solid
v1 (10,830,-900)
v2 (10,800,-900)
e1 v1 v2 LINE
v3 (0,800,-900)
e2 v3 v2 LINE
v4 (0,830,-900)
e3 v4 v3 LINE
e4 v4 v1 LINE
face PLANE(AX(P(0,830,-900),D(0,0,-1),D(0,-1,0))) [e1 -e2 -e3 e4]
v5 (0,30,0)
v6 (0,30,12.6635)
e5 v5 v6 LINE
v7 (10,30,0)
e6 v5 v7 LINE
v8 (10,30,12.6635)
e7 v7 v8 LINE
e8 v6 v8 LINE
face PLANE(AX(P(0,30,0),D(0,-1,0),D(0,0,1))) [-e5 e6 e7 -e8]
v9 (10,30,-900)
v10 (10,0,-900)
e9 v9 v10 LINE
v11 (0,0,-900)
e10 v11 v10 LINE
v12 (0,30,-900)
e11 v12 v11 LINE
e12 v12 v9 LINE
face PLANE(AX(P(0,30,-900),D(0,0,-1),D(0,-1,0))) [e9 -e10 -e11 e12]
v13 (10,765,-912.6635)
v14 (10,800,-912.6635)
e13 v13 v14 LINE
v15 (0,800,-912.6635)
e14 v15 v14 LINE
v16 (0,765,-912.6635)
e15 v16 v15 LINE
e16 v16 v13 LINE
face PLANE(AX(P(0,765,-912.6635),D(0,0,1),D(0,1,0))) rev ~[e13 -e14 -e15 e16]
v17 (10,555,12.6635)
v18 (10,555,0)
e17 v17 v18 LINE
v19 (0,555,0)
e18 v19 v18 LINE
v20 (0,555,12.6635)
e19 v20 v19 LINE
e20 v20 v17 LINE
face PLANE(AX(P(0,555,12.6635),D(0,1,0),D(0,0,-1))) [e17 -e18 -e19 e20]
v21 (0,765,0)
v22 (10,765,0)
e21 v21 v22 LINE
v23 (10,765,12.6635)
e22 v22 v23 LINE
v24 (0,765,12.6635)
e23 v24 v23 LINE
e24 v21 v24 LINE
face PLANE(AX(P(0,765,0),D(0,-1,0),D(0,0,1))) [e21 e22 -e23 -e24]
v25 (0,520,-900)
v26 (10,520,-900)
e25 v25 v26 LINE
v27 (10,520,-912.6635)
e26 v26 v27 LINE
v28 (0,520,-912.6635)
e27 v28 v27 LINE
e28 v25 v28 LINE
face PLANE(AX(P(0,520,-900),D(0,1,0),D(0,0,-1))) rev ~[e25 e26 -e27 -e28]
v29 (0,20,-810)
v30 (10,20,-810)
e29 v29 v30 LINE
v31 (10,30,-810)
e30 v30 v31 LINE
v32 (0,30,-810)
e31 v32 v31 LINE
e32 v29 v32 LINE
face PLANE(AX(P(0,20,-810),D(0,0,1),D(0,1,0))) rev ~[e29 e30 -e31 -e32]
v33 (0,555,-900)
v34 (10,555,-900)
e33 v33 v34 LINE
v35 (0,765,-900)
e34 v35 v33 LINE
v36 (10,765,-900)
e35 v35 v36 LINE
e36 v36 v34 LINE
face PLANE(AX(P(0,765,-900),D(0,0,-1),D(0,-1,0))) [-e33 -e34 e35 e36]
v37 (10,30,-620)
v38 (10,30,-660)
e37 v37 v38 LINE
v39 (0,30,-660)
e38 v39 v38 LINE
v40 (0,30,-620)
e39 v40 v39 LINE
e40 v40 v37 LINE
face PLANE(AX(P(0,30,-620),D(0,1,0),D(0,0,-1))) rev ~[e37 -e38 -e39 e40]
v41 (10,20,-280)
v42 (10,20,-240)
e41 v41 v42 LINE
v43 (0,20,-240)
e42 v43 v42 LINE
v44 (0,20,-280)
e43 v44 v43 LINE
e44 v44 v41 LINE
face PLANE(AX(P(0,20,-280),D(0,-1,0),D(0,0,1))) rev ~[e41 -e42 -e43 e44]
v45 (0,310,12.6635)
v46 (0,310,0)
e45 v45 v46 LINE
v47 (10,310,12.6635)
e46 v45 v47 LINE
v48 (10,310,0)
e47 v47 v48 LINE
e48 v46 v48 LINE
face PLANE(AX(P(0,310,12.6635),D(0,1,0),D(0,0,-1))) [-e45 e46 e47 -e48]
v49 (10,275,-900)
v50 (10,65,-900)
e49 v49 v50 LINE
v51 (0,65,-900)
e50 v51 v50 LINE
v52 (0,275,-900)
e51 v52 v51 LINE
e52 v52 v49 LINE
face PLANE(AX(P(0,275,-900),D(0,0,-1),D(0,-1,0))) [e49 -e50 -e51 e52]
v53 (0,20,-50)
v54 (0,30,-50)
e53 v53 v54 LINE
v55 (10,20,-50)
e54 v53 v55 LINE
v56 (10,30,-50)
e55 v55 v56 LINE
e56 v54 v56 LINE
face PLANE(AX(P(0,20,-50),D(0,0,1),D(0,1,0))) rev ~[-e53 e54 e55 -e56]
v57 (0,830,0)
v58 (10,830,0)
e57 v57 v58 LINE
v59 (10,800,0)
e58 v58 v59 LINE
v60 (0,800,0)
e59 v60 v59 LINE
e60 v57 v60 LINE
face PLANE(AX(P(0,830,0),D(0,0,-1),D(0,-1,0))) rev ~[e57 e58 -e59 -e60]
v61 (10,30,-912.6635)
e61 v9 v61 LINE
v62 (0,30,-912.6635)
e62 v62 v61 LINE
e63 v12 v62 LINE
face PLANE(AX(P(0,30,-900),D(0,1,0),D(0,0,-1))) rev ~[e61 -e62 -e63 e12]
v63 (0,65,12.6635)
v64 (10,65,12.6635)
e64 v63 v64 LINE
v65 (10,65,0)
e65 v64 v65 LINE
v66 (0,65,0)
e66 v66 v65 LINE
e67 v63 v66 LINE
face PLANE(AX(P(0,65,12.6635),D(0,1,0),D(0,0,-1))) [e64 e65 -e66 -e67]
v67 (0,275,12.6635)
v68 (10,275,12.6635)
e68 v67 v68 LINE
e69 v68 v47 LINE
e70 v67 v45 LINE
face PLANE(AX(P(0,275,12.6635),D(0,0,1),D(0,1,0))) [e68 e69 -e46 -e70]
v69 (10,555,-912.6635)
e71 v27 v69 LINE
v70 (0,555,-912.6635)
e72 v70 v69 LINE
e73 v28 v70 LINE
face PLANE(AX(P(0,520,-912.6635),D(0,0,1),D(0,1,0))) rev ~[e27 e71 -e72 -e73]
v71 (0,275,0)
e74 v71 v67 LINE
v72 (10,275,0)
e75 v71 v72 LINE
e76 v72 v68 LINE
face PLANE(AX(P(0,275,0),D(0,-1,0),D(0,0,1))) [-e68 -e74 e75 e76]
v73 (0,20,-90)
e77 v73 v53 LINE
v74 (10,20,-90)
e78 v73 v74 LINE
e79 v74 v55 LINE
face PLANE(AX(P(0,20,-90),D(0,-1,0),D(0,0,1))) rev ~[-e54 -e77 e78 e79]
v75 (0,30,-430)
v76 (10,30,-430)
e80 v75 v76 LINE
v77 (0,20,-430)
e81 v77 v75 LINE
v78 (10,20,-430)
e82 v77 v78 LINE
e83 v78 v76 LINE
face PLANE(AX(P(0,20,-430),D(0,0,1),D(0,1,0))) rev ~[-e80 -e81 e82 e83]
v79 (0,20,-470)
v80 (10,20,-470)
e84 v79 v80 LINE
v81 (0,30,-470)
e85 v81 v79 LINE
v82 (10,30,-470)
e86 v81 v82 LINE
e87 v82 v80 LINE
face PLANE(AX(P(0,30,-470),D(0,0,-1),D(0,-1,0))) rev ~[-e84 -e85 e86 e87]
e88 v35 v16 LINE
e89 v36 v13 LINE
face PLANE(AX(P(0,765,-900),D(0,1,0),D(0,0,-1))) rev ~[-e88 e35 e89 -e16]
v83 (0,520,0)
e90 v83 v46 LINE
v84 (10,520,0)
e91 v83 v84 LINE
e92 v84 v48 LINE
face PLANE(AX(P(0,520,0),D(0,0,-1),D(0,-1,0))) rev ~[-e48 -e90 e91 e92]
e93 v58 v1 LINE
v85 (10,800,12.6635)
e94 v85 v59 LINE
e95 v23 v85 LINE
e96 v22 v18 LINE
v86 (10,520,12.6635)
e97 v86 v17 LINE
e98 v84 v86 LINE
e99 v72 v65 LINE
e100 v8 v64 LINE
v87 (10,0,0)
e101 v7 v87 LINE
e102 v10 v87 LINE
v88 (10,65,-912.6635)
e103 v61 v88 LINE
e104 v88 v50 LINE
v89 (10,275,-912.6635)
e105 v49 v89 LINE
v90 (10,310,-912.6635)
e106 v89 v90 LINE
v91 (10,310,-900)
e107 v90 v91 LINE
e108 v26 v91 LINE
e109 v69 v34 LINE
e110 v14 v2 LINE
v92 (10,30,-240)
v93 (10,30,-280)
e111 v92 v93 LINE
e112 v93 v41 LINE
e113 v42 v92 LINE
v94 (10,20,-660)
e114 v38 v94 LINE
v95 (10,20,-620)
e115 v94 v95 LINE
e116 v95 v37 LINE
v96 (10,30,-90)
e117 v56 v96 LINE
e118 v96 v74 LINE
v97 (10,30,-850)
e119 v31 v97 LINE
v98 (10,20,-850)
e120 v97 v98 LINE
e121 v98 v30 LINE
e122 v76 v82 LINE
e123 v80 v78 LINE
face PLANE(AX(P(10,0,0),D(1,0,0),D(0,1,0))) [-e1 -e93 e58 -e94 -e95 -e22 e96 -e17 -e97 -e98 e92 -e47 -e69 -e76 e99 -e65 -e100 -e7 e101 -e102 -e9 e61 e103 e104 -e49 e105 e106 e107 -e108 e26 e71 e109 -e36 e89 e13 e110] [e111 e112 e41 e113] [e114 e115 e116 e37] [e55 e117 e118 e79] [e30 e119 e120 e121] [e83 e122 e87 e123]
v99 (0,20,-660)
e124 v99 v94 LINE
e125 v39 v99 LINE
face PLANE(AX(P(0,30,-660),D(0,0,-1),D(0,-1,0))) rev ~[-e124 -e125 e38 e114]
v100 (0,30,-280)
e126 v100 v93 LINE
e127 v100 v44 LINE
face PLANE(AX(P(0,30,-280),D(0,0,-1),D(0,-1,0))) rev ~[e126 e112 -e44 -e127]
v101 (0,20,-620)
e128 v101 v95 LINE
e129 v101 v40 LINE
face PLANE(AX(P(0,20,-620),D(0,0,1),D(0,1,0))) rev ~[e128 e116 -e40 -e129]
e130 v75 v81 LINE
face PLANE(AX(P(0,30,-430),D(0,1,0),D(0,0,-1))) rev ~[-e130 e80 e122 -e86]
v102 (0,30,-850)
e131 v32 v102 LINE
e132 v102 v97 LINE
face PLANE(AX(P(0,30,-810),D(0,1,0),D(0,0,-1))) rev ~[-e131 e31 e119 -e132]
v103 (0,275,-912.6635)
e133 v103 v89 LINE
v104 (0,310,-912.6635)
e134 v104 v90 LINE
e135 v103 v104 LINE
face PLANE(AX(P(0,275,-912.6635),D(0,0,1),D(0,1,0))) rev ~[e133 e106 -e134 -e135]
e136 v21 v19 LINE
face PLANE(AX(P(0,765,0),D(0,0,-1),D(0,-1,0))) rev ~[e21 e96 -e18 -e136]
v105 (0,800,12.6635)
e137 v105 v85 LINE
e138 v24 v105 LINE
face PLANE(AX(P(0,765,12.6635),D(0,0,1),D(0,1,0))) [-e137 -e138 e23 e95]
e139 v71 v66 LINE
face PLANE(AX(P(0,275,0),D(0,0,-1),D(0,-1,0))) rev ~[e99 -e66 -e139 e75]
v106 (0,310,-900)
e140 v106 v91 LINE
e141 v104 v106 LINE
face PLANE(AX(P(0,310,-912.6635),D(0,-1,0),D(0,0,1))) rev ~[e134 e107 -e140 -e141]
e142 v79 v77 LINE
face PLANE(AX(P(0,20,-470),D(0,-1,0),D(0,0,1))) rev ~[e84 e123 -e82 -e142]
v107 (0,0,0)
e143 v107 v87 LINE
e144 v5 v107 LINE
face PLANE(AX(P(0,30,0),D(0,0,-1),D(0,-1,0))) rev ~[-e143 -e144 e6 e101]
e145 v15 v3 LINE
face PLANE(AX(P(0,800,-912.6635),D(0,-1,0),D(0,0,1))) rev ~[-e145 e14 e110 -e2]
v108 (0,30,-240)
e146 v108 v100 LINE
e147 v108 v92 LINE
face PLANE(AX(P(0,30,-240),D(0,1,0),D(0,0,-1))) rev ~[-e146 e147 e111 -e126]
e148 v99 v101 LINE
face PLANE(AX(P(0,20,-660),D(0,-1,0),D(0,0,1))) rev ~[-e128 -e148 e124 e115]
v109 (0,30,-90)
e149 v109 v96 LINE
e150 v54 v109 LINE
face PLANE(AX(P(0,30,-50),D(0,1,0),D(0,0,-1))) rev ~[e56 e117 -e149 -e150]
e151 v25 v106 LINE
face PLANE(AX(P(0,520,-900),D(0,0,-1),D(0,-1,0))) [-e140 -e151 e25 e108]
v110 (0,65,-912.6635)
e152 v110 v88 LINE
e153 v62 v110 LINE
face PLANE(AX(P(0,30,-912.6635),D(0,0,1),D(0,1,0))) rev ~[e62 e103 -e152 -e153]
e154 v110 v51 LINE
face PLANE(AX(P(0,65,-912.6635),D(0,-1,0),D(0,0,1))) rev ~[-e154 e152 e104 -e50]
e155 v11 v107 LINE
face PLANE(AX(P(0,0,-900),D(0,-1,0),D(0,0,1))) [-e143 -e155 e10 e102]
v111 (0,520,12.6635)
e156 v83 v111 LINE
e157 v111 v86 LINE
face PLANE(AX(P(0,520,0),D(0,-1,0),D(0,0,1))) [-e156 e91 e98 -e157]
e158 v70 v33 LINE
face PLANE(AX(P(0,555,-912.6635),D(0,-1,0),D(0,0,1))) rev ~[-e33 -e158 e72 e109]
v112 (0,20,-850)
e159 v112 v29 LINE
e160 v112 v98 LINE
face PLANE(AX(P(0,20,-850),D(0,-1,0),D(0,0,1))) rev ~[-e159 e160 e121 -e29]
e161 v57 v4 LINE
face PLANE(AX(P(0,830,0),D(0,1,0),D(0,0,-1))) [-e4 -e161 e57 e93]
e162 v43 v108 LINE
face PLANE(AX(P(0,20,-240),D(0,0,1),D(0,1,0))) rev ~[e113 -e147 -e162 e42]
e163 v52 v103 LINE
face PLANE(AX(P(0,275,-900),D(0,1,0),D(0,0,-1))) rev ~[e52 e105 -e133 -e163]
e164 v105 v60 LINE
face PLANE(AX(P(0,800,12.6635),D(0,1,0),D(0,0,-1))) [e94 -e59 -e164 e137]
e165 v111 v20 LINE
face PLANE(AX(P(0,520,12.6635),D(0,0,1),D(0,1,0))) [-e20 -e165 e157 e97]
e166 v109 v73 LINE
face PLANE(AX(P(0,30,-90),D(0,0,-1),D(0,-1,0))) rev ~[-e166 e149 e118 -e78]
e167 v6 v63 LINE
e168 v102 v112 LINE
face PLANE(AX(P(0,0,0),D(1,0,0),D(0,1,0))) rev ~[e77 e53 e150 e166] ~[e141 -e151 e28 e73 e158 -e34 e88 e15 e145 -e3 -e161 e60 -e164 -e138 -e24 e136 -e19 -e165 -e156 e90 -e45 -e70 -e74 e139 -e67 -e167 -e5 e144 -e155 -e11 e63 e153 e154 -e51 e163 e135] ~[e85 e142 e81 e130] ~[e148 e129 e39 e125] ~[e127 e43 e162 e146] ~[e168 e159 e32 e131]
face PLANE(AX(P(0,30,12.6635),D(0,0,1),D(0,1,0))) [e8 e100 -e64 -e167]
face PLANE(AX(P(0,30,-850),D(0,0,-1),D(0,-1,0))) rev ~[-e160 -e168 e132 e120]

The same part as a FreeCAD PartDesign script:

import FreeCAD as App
import Part
import Sketcher


def add_polygon(sketch, points):
    """Adds a closed chain of lines whose ends are joined by coincident constraints."""
    first, n = sketch.GeometryCount, len(points)
    for a, b in zip(points, points[1:] + points[:1]):
        sketch.addGeometry(Part.LineSegment(App.Vector(*a, 0), App.Vector(*b, 0)), False)
    for i in range(n):
        sketch.addConstraint(Sketcher.Constraint("Coincident", first + i, 2, first + (i + 1) % n, 1))

doc = App.newDocument("Part")
body = doc.addObject("PartDesign::Body", "Body")

# Sketch on YZ plane
sketch1 = body.newObject("Sketcher::SketchObject", "Sketch")
sketch1.AttachmentSupport = (doc.getObject("YZ_Plane"), [""])
sketch1.MapMode = "FlatFace"
add_polygon(sketch1, [(830, -900), (830, 0), (800, 0), (800, 13), (765, 13), (765, 0), (555, 0), (555, 13), (520, 13), (520, 0), (310, 0), (310, 13), (275, 13), (275, 0), (65, 0), (65, 13), (30, 13), (30, 0), (0, 0), (0, -900), (30, -900), (30, -913), (65, -913), (65, -900), (275, -900), (275, -913), (310, -913), (310, -900), (520, -900), (520, -913), (555, -913), (555, -900), (765, -900), (765, -913), (800, -913), (800, -900)])  # lines 0-35
add_polygon(sketch1, [(20, -850), (20, -810), (30, -810), (30, -850)])  # lines 36-39
add_polygon(sketch1, [(20, -660), (20, -620), (30, -620), (30, -660)])  # lines 40-43
add_polygon(sketch1, [(20, -470), (20, -430), (30, -430), (30, -470)])  # lines 44-47
add_polygon(sketch1, [(20, -280), (20, -240), (30, -240), (30, -280)])  # lines 48-51
add_polygon(sketch1, [(20, -90), (20, -50), (30, -50), (30, -90)])  # lines 52-55
sketch1.addConstraint([
    Sketcher.Constraint("Vertical", 0),
    Sketcher.Constraint("Horizontal", 1),
    Sketcher.Constraint("Vertical", 2),
    Sketcher.Constraint("Horizontal", 3),
    Sketcher.Constraint("Vertical", 4),
    Sketcher.Constraint("Horizontal", 5),
    Sketcher.Constraint("Vertical", 6),
    Sketcher.Constraint("Horizontal", 7),
    Sketcher.Constraint("Vertical", 8),
    Sketcher.Constraint("Horizontal", 9),
    Sketcher.Constraint("Vertical", 10),
    Sketcher.Constraint("Horizontal", 11),
    Sketcher.Constraint("Vertical", 12),
    Sketcher.Constraint("Horizontal", 13),
    Sketcher.Constraint("Vertical", 14),
    Sketcher.Constraint("Horizontal", 15),
    Sketcher.Constraint("Vertical", 16),
    Sketcher.Constraint("Horizontal", 17),
    Sketcher.Constraint("Vertical", 18),
    Sketcher.Constraint("Horizontal", 19),
    Sketcher.Constraint("Vertical", 20),
    Sketcher.Constraint("Horizontal", 21),
    Sketcher.Constraint("Vertical", 22),
    Sketcher.Constraint("Horizontal", 23),
    Sketcher.Constraint("Vertical", 24),
    Sketcher.Constraint("Horizontal", 25),
    Sketcher.Constraint("Vertical", 26),
    Sketcher.Constraint("Horizontal", 27),
    Sketcher.Constraint("Vertical", 28),
    Sketcher.Constraint("Horizontal", 29),
    Sketcher.Constraint("Vertical", 30),
    Sketcher.Constraint("Horizontal", 31),
    Sketcher.Constraint("Vertical", 32),
    Sketcher.Constraint("Horizontal", 33),
    Sketcher.Constraint("Vertical", 34),
    Sketcher.Constraint("Horizontal", 35),
    Sketcher.Constraint("Vertical", 36),
    Sketcher.Constraint("Horizontal", 37),
    Sketcher.Constraint("Vertical", 38),
    Sketcher.Constraint("Horizontal", 39),
    Sketcher.Constraint("Vertical", 40),
    Sketcher.Constraint("Horizontal", 41),
    Sketcher.Constraint("Vertical", 42),
    Sketcher.Constraint("Horizontal", 43),
    Sketcher.Constraint("Vertical", 44),
    Sketcher.Constraint("Horizontal", 45),
    Sketcher.Constraint("Vertical", 46),
    Sketcher.Constraint("Horizontal", 47),
    Sketcher.Constraint("Vertical", 48),
    Sketcher.Constraint("Horizontal", 49),
    Sketcher.Constraint("Vertical", 50),
    Sketcher.Constraint("Horizontal", 51),
    Sketcher.Constraint("Vertical", 52),
    Sketcher.Constraint("Horizontal", 53),
    Sketcher.Constraint("Vertical", 54),
    Sketcher.Constraint("Horizontal", 55),
    Sketcher.Constraint("Coincident", 17, 2, -1, 1),
    Sketcher.Constraint("PointOnObject", 0, 2, -1),
    Sketcher.Constraint("PointOnObject", 4, 2, -1),
    Sketcher.Constraint("PointOnObject", 8, 2, -1),
    Sketcher.Constraint("PointOnObject", 12, 2, -1),
    Sketcher.Constraint("Horizontal", 3, 2, 6, 2),
    Sketcher.Constraint("Horizontal", 7, 2, 10, 2),
    Sketcher.Constraint("Horizontal", 11, 2, 14, 2),
    Sketcher.Constraint("Horizontal", 19, 2, 22, 2),
    Sketcher.Constraint("Horizontal", 21, 2, 24, 2),
    Sketcher.Constraint("Horizontal", 23, 2, 26, 2),
    Sketcher.Constraint("Horizontal", 25, 2, 28, 2),
    Sketcher.Constraint("Horizontal", 27, 2, 30, 2),
    Sketcher.Constraint("Horizontal", 29, 2, 32, 2),
    Sketcher.Constraint("Horizontal", 31, 2, 34, 2),
    Sketcher.Constraint("Vertical", 16, 2, 19, 2),
    Sketcher.Constraint("Vertical", 14, 2, 21, 2),
    Sketcher.Constraint("Vertical", 12, 2, 23, 2),
    Sketcher.Constraint("Vertical", 10, 2, 25, 2),
    Sketcher.Constraint("Vertical", 8, 2, 27, 2),
    Sketcher.Constraint("Vertical", 6, 2, 29, 2),
    Sketcher.Constraint("Vertical", 4, 2, 31, 2),
    Sketcher.Constraint("Vertical", 2, 2, 33, 2),
    Sketcher.Constraint("Vertical", 20, 2, 37, 2),
    Sketcher.Constraint("Vertical", 39, 2, 40, 2),
    Sketcher.Constraint("Vertical", 38, 2, 41, 2),
    Sketcher.Constraint("Vertical", 43, 2, 44, 2),
    Sketcher.Constraint("Vertical", 42, 2, 45, 2),
    Sketcher.Constraint("Vertical", 47, 2, 48, 2),
    Sketcher.Constraint("Vertical", 46, 2, 49, 2),
    Sketcher.Constraint("Vertical", 51, 2, 52, 2),
    Sketcher.Constraint("Vertical", 50, 2, 53, 2),
    Sketcher.Constraint("Equal", 3, 7),
    Sketcher.Constraint("Equal", 5, 9),
    Sketcher.Constraint("Equal", 7, 11),
    Sketcher.Constraint("Equal", 9, 13),
    Sketcher.Constraint("Equal", 11, 15),
    Sketcher.Constraint("Equal", 1, 17),
    Sketcher.Constraint("Equal", 16, 20),
    Sketcher.Constraint("Equal", 38, 40),
    Sketcher.Constraint("Equal", 42, 44),
    Sketcher.Constraint("Equal", 46, 48),
    Sketcher.Constraint("Equal", 50, 52),
    Sketcher.Constraint("DistanceX", 1, 2, 1, 1, 30.0),
    Sketcher.Constraint("DistanceX", 3, 2, 3, 1, 35.0),
    Sketcher.Constraint("DistanceX", 5, 2, 5, 1, 210.0),
    Sketcher.Constraint("DistanceX", 37, 1, 37, 2, 10.0),
    Sketcher.Constraint("DistanceY", 0, 1, 0, 2, 900.0),
    Sketcher.Constraint("DistanceY", 36, 1, 36, 2, 40.0),
    Sketcher.Constraint("DistanceY", 52, 2, -1, 1, 50.0),
    Sketcher.Constraint("DistanceY", 19, 2, 38, 2, 50.0),
    Sketcher.Constraint("DistanceY", 37, 2, 42, 2, 150.0),
    Sketcher.Constraint("DistanceY", 41, 2, 46, 2, 150.0),
    Sketcher.Constraint("DistanceY", 45, 2, 50, 2, 150.0),
    Sketcher.Constraint("DistanceY", 2, 1, 2, 2, 12.6635),
])
pad1 = body.newObject("PartDesign::Pad", "Pad")
pad1.Profile = sketch1
pad1.Length = 10

doc.recompute()
